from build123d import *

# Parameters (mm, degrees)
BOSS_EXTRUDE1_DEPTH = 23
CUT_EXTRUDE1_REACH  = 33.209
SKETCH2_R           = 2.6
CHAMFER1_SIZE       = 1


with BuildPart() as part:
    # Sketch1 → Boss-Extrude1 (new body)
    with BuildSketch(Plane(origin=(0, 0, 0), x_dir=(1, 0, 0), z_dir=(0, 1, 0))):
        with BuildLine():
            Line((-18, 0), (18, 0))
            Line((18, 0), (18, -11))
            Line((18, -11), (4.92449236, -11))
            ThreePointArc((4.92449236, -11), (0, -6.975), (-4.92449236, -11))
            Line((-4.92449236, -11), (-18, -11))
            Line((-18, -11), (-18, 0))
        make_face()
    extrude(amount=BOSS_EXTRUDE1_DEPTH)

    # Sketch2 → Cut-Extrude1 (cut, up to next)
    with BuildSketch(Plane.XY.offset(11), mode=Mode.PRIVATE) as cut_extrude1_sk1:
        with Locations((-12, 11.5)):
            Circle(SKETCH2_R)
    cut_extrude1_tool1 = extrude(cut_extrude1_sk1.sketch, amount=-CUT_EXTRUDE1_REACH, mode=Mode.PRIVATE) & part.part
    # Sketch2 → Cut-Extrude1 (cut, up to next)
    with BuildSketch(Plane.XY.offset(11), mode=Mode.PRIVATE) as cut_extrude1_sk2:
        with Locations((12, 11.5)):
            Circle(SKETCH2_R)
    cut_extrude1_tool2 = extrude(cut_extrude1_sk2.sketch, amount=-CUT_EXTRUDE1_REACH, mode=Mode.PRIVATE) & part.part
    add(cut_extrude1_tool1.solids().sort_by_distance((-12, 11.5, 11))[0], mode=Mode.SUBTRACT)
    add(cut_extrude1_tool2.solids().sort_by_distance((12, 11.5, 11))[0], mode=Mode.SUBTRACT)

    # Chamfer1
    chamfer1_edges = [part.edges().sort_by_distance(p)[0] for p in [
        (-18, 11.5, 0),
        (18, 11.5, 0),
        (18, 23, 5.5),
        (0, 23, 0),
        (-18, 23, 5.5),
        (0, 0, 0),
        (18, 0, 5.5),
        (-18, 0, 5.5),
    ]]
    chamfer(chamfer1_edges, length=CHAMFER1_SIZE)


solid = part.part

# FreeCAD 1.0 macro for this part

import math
import FreeCAD as App
import Part
import Sketcher
from FreeCAD import Vector


def edges_at(feature, points):
    """Names of the edges that pass closest to the given points."""
    edges = feature.Shape.Edges
    near = lambda p: min(range(len(edges)), key=lambda i: edges[i].distToShape(Part.Vertex(*p))[0])
    return sorted({f"Edge{near(p) + 1}" for p in points})

doc = App.newDocument("Part")
body = doc.addObject("PartDesign::Body", "Body")

# Sketch on XZ plane
sketch1 = body.newObject("Sketcher::SketchObject", "Sketch")
sketch1.AttachmentSupport = (doc.getObject("XZ_Plane"), [""])
sketch1.MapMode = "FlatFace"
sketch1.addGeometry([
    Part.LineSegment(Vector(18, 0, 0), Vector(-18, 0, 0)),  # 0
    Part.LineSegment(Vector(-18, 0, 0), Vector(-18, 11, 0)),  # 1
    Part.LineSegment(Vector(-18, 11, 0), Vector(-4.924492, 11, 0)),  # 2
    Part.ArcOfCircle(Part.Circle(Vector(0, 12, 0), Vector(0, 0, 1), 5.025), math.radians(-168.521221), math.radians(-11.478779)),  # 3
    Part.LineSegment(Vector(4.924492, 11, 0), Vector(18, 11, 0)),  # 4
    Part.LineSegment(Vector(18, 11, 0), Vector(18, 0, 0)),  # 5
], False)
sketch1.addConstraint([
    Sketcher.Constraint("Coincident", 0, 2, 1, 1),
    Sketcher.Constraint("Coincident", 1, 2, 2, 1),
    Sketcher.Constraint("Coincident", 2, 2, 3, 1),
    Sketcher.Constraint("Coincident", 3, 2, 4, 1),
    Sketcher.Constraint("Coincident", 4, 2, 5, 1),
    Sketcher.Constraint("Coincident", 5, 2, 0, 1),
    Sketcher.Constraint("Horizontal", 0),
    Sketcher.Constraint("Vertical", 1),
    Sketcher.Constraint("Horizontal", 2),
    Sketcher.Constraint("Horizontal", 4),
    Sketcher.Constraint("Vertical", 5),
    Sketcher.Constraint("Symmetric", 0, 2, 5, 2, -1, 1),
    Sketcher.Constraint("Symmetric", 2, 2, 3, 2, -2),
    Sketcher.Constraint("DistanceX", 0, 2, 0, 1, 36.0),
    Sketcher.Constraint("DistanceY", 1, 1, 1, 2, 11.0),
    Sketcher.Constraint("DistanceY", -1, 1, 3, 3, 12.0),
    Sketcher.Constraint("Radius", 3, 5.025),
])
pad1 = body.newObject("PartDesign::Pad", "Pad")
pad1.Profile = sketch1
pad1.Length = 23
pad1.Reversed = True

# Sketch on XY plane
sketch2 = body.newObject("Sketcher::SketchObject", "Sketch001")
sketch2.AttachmentSupport = (doc.getObject("XY_Plane"), [""])
sketch2.MapMode = "FlatFace"
sketch2.AttachmentOffset = App.Placement(Vector(0, 0, 11), App.Rotation())
sketch2.addGeometry(Part.Circle(Vector(-12, 11.5, 0), Vector(0, 0, 1), 2.6), False)
sketch2.addConstraint([
    Sketcher.Constraint("Diameter", 0, 5.2),
    Sketcher.Constraint("DistanceX", 0, 3, -1, 1, 12.0),
    Sketcher.Constraint("DistanceY", -1, 1, 0, 3, 11.5),
])
pocket1 = body.newObject("PartDesign::Pocket", "Pocket")
pocket1.Profile = sketch2
pocket1.Type = "UpToFirst"

# Sketch on XY plane
sketch3 = body.newObject("Sketcher::SketchObject", "Sketch002")
sketch3.AttachmentSupport = (doc.getObject("XY_Plane"), [""])
sketch3.MapMode = "FlatFace"
sketch3.AttachmentOffset = App.Placement(Vector(0, 0, 11), App.Rotation())
sketch3.addGeometry(Part.Circle(Vector(12, 11.5, 0), Vector(0, 0, 1), 2.6), False)
sketch3.addConstraint([
    Sketcher.Constraint("Diameter", 0, 5.2),
    Sketcher.Constraint("DistanceX", -1, 1, 0, 3, 12.0),
    Sketcher.Constraint("DistanceY", -1, 1, 0, 3, 11.5),
])
pocket2 = body.newObject("PartDesign::Pocket", "Pocket001")
pocket2.Profile = sketch3
pocket2.Type = "UpToFirst"
doc.recompute()

chamfer = body.newObject("PartDesign::Chamfer", "Chamfer")
chamfer.Base = (pocket2, edges_at(pocket2, [
    (-18, 11.5, 0),
    (18, 11.5, 0),
    (18, 23, 5.5),
    (0, 23, 0),
    (-18, 23, 5.5),
    (0, 0, 0),
    (18, 0, 5.5),
    (-18, 0, 5.5),
]))
chamfer.Size = 1

doc.recompute()
